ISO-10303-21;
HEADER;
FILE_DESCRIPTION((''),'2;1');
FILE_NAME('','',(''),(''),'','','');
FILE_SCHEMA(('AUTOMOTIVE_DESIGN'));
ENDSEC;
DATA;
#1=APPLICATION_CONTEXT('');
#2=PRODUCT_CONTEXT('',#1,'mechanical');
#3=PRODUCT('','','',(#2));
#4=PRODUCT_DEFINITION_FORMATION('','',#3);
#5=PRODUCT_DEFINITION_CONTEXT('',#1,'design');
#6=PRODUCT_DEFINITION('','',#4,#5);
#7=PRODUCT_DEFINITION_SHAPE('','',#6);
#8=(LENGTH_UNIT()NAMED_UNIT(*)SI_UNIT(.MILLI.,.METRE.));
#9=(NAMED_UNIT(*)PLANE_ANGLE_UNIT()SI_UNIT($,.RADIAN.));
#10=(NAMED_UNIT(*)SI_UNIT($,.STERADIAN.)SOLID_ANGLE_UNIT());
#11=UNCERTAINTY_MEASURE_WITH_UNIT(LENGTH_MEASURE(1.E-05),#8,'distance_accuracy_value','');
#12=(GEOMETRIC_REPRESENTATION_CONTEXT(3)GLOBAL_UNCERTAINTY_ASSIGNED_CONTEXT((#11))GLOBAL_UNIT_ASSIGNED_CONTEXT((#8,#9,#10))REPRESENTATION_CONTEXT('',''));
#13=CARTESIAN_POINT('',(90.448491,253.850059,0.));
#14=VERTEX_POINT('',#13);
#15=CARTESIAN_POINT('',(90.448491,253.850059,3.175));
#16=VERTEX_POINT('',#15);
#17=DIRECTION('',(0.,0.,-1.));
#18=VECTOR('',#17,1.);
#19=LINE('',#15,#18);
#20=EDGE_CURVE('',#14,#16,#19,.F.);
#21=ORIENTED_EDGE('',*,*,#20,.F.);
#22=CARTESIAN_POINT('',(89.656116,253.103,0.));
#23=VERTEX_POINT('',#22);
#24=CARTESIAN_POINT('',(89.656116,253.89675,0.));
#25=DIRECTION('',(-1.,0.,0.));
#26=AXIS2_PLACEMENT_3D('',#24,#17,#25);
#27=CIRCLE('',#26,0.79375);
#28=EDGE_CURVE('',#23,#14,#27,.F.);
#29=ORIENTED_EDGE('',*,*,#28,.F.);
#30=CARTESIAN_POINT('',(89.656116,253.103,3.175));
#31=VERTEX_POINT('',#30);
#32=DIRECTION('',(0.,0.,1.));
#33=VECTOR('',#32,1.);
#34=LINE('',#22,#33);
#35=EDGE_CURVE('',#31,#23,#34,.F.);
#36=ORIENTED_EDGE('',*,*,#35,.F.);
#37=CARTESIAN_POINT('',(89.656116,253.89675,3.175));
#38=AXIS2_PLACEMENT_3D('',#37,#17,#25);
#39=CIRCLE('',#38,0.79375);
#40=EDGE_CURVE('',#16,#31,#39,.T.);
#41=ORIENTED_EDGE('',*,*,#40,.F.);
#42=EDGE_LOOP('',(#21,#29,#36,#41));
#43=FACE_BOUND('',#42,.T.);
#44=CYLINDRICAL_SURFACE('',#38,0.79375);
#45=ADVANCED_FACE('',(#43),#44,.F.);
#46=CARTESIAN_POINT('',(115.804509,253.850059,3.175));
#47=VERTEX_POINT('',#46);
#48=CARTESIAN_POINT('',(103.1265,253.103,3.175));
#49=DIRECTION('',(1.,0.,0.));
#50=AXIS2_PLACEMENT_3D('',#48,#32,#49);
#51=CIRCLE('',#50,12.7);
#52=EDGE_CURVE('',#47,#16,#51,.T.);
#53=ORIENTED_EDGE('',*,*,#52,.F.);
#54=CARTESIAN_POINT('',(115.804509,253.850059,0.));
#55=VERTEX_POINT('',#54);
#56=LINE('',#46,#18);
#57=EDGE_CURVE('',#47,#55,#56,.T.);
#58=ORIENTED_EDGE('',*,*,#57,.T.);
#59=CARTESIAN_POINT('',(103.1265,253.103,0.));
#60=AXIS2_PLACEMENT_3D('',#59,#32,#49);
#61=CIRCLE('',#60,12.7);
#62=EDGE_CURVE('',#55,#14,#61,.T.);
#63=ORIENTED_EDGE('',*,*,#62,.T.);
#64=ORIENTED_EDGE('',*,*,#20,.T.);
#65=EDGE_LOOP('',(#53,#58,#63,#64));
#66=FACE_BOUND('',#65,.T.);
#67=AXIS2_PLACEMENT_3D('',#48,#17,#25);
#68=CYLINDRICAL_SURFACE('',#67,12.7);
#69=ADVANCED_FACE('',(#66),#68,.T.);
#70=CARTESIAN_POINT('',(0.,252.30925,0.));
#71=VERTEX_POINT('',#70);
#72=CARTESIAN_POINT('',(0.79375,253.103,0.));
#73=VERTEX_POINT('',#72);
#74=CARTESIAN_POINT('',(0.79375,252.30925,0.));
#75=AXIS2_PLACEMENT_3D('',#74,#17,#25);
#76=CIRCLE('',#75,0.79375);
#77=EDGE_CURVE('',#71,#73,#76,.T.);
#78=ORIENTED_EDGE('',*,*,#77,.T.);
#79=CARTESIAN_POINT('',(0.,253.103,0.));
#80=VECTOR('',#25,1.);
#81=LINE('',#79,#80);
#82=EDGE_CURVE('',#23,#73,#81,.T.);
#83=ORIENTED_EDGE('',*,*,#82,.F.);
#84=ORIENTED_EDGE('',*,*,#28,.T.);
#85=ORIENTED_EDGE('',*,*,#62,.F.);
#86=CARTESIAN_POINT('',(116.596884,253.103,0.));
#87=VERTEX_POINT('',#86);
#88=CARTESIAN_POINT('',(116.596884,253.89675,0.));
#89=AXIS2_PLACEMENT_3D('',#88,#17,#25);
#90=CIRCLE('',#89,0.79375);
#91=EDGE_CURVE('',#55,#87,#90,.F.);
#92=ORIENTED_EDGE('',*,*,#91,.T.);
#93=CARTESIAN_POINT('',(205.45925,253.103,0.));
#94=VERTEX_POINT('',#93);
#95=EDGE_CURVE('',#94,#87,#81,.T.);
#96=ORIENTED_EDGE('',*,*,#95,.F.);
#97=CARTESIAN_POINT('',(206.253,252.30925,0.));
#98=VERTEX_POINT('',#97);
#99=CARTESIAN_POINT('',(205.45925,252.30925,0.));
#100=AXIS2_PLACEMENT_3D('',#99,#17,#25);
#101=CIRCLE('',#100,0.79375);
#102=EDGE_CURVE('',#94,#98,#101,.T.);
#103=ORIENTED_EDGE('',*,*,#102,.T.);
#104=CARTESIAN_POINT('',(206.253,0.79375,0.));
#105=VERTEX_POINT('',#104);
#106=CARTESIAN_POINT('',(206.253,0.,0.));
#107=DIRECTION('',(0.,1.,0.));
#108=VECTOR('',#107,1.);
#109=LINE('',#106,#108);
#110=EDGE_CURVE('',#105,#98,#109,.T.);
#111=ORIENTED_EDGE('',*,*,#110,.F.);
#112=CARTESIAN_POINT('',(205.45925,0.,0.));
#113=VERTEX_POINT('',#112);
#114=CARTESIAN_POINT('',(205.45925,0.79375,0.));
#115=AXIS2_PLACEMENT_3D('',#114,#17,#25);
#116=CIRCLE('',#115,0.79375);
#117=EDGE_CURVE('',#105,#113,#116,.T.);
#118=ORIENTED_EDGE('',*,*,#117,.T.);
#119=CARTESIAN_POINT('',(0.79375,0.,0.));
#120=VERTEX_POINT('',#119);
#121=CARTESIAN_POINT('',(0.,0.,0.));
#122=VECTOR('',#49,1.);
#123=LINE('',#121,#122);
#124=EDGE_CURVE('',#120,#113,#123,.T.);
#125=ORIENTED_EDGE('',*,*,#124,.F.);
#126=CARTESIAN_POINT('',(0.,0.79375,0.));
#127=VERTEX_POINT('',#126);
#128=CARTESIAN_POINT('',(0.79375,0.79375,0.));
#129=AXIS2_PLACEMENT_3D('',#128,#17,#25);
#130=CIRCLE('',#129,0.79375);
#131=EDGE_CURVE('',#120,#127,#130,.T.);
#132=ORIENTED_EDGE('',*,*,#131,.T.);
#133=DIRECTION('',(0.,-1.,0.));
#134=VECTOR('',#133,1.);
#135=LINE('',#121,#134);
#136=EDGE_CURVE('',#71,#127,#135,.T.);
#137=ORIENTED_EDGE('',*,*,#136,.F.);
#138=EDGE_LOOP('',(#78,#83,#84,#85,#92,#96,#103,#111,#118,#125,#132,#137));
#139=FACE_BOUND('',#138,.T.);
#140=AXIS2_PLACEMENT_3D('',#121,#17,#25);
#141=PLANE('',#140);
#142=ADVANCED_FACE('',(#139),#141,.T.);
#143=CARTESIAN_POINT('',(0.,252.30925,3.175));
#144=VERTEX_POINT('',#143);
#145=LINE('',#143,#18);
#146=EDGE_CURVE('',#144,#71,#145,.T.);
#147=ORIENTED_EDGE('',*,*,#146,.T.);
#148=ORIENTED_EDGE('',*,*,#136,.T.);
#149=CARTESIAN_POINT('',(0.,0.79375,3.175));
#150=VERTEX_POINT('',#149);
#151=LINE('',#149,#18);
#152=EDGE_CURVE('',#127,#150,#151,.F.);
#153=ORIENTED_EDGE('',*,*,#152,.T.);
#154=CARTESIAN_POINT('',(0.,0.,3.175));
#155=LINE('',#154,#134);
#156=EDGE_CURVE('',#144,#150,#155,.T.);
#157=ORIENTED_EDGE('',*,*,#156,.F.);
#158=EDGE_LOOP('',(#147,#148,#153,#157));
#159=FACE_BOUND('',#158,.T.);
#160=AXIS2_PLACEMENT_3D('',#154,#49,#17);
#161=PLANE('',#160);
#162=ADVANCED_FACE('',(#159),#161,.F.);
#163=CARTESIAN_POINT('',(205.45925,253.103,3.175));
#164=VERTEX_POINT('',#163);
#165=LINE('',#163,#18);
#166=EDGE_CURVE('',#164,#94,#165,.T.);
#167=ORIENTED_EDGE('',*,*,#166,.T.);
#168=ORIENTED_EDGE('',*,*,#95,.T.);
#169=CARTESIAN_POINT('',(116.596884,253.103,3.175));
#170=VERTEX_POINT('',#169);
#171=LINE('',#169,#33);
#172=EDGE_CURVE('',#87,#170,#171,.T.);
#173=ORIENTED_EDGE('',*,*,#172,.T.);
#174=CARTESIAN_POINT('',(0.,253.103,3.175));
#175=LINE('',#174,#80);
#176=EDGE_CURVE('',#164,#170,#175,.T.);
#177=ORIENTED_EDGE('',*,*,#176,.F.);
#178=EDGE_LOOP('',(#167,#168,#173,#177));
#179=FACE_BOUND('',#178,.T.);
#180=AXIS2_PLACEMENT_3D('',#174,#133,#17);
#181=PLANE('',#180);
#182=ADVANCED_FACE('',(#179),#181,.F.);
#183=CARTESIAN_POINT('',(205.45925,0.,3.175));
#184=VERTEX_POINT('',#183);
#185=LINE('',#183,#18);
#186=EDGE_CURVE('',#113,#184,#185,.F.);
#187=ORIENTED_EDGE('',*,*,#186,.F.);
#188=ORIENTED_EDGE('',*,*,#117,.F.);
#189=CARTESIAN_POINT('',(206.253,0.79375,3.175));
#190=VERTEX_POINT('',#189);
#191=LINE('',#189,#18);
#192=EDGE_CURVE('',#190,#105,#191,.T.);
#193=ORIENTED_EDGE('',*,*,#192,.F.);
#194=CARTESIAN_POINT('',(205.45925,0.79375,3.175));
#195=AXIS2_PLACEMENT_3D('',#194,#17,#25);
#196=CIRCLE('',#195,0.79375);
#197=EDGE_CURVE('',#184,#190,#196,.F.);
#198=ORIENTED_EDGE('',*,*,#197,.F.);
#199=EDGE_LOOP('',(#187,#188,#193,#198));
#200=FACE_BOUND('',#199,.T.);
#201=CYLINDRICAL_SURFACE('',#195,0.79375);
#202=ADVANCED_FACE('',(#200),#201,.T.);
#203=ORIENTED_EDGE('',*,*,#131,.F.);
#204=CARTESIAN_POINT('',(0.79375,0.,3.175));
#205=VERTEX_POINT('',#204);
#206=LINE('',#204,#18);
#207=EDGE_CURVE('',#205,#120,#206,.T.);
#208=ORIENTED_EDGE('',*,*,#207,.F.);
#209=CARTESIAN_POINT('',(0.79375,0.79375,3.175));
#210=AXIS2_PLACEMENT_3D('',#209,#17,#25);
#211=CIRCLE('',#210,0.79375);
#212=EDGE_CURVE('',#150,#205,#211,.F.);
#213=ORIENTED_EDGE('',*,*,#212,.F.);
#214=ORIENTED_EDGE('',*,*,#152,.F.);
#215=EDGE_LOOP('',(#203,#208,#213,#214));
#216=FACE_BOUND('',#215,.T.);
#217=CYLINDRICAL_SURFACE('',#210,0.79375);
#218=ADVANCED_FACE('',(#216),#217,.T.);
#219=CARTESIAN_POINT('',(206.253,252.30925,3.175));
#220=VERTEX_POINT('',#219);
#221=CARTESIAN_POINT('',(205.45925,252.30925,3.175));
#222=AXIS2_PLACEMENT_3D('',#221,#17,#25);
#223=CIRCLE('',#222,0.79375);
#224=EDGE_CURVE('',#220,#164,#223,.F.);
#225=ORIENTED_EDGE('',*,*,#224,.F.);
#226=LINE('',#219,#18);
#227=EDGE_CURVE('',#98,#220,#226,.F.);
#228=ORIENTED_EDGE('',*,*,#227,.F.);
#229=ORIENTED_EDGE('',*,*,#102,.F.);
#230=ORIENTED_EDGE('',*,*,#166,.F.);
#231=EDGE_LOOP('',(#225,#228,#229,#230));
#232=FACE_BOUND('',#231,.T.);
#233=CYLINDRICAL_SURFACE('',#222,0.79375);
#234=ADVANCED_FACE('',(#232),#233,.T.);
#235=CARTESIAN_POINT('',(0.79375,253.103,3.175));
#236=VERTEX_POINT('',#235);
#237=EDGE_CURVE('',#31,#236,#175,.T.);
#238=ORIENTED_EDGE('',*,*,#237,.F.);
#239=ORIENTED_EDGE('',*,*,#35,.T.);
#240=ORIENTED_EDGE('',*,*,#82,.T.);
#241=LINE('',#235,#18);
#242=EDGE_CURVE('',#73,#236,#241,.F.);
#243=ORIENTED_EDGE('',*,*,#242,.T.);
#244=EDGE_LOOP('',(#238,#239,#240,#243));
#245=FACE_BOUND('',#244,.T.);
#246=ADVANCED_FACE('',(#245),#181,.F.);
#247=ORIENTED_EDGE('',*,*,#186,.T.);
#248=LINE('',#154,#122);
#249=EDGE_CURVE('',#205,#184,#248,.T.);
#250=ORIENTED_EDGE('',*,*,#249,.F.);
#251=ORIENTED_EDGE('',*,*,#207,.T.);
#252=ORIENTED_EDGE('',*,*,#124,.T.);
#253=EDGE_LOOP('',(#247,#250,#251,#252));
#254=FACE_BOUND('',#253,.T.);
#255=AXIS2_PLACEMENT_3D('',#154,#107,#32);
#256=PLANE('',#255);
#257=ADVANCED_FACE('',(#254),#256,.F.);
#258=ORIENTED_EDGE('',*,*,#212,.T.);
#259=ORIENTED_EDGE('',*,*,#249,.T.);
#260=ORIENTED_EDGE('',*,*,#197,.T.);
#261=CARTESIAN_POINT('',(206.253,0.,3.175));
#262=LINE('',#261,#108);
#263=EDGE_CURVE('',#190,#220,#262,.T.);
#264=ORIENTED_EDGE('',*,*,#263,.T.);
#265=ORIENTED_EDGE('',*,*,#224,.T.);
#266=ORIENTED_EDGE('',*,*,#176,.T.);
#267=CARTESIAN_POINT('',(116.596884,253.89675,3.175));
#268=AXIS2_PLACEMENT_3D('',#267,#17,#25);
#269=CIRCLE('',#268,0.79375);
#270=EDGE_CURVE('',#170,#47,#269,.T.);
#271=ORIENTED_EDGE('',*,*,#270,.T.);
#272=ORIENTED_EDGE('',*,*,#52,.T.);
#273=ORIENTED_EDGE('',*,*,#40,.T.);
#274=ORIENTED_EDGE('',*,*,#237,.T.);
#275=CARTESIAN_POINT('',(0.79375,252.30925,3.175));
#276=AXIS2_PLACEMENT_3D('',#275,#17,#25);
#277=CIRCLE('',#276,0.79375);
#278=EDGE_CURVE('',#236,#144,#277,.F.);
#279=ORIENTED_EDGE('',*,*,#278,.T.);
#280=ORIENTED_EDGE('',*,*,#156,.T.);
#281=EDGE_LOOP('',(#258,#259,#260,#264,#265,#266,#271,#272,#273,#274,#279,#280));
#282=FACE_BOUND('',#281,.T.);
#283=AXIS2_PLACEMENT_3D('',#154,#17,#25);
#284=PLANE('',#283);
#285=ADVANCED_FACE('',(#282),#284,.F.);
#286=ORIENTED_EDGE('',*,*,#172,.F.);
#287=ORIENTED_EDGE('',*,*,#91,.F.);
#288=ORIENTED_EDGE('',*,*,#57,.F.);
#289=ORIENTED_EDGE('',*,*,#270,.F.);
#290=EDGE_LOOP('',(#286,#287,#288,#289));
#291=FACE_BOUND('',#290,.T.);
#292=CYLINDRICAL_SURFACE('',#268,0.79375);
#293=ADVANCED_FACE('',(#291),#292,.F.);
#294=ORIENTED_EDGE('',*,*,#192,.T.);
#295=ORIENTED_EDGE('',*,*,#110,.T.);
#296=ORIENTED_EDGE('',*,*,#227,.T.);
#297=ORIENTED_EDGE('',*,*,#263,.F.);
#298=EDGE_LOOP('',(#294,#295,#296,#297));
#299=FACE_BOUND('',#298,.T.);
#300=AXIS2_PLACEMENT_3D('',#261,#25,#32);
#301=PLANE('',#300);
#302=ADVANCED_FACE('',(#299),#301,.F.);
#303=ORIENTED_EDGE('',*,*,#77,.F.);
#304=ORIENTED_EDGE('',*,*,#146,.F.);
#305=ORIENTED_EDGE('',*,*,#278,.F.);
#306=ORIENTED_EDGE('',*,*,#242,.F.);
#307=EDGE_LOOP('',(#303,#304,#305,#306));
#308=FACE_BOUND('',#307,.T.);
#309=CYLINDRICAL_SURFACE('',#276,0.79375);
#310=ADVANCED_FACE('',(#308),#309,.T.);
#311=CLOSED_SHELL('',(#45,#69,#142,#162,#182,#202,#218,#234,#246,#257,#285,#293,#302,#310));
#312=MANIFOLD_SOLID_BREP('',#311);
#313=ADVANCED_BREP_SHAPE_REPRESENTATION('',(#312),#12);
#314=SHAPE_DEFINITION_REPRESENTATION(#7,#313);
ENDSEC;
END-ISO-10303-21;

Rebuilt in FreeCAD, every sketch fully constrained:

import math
import FreeCAD as App
import Part
import Sketcher
Q = App.Units.Quantity


def edges_at(feature, points):
    """Names of the edges that pass closest to the given points."""
    edges = feature.Shape.Edges
    near = lambda p: min(range(len(edges)), key=lambda i: edges[i].distToShape(Part.Vertex(*p))[0])
    return sorted({f"Edge{near(p) + 1}" for p in points})

doc = App.newDocument("Part")
params = doc.addObject("Spreadsheet::Sheet", "Params")
for row, (alias, value) in enumerate([
    ("pad1_length", "0.125 in"),
    ("sketch2_radius", "0.5 in"),
    ("pad2_length", "0.125 in"),
    ("fillet_radius", "0.03125 in"),
], start=1):
    params.set(f"A{row}", alias)
    params.set(f"B{row}", "=" + value)
    params.setAlias(f"B{row}", alias)

body = doc.addObject("PartDesign::Body", "Body")

# Sketch on XY plane
sketch1 = body.newObject("Sketcher::SketchObject", "Sketch")
sketch1.AttachmentSupport = (doc.getObject("XY_Plane"), [""])
sketch1.MapMode = "FlatFace"
sketch1.addGeometry(Part.LineSegment(App.Vector(0, 253.103, 0), App.Vector(0, 0, 0)), False)
sketch1.addGeometry(Part.LineSegment(App.Vector(0, 0, 0), App.Vector(206.253, 0, 0)), False)
sketch1.addGeometry(Part.LineSegment(App.Vector(206.253, 0, 0), App.Vector(206.253, 253.103, 0)), False)
sketch1.addGeometry(Part.LineSegment(App.Vector(206.253, 253.103, 0), App.Vector(0, 253.103, 0)), False)
sketch1.addConstraint(Sketcher.Constraint("Coincident", 0, 2, 1, 1))
sketch1.addConstraint(Sketcher.Constraint("Coincident", 1, 2, 2, 1))
sketch1.addConstraint(Sketcher.Constraint("Coincident", 2, 2, 3, 1))
sketch1.addConstraint(Sketcher.Constraint("Coincident", 3, 2, 0, 1))
sketch1.addConstraint(Sketcher.Constraint("Vertical", 0))
sketch1.addConstraint(Sketcher.Constraint("Horizontal", 1))
sketch1.addConstraint(Sketcher.Constraint("Vertical", 2))
sketch1.addConstraint(Sketcher.Constraint("Horizontal", 3))
sketch1.addConstraint(Sketcher.Constraint("Coincident", 0, 2, -1, 1))
sketch1.addConstraint(Sketcher.Constraint("DistanceX", 1, 1, 1, 2, 206.253))
sketch1.addConstraint(Sketcher.Constraint("DistanceY", 0, 2, 0, 1, 253.103))
pad1 = body.newObject("PartDesign::Pad", "Pad")
pad1.Profile = sketch1
pad1.setExpression("Length", "Params.pad1_length")

# Sketch on XY plane
sketch2 = body.newObject("Sketcher::SketchObject", "Sketch001")
sketch2.AttachmentSupport = (doc.getObject("XY_Plane"), [""])
sketch2.MapMode = "FlatFace"
sketch2.addGeometry(Part.LineSegment(App.Vector(90.4265, 253.103, 0), App.Vector(115.8265, 253.103, 0)), False)
sketch2.addGeometry(Part.ArcOfCircle(Part.Circle(App.Vector(103.1265, 253.103, 0), App.Vector(0, 0, 1), 12.7), math.radians(0), math.radians(180)), False)
sketch2.addConstraint(Sketcher.Constraint("Coincident", 0, 1, 1, 2))
sketch2.addConstraint(Sketcher.Constraint("Coincident", 1, 1, 0, 2))
sketch2.addConstraint(Sketcher.Constraint("Horizontal", 0))
sketch2.addConstraint(Sketcher.Constraint("Horizontal", 1, 3, 0, 1))
sketch2.addConstraint(Sketcher.Constraint("Radius", 1, Q("0.5 in")))
sketch2.addConstraint(Sketcher.Constraint("DistanceX", -1, 1, 1, 3, 103.1265))
sketch2.addConstraint(Sketcher.Constraint("DistanceY", -1, 1, 1, 3, 253.103))
sketch2.setExpression("Constraints[4]", "Params.sketch2_radius")
pad2 = body.newObject("PartDesign::Pad", "Pad001")
pad2.Profile = sketch2
pad2.setExpression("Length", "Params.pad2_length")
doc.recompute()

fillet = body.newObject("PartDesign::Fillet", "Fillet")
fillet.Base = (pad2, edges_at(pad2, [
    (115.826, 253.103, 1.587),
    (90.427, 253.103, 1.587),
    (0, 253.103, 1.587),
    (206.253, 253.103, 1.587),
    (206.253, 0, 1.587),
    (0, 0, 1.587),
]))
fillet.setExpression("Radius", "Params.fillet_radius")

doc.recompute()
